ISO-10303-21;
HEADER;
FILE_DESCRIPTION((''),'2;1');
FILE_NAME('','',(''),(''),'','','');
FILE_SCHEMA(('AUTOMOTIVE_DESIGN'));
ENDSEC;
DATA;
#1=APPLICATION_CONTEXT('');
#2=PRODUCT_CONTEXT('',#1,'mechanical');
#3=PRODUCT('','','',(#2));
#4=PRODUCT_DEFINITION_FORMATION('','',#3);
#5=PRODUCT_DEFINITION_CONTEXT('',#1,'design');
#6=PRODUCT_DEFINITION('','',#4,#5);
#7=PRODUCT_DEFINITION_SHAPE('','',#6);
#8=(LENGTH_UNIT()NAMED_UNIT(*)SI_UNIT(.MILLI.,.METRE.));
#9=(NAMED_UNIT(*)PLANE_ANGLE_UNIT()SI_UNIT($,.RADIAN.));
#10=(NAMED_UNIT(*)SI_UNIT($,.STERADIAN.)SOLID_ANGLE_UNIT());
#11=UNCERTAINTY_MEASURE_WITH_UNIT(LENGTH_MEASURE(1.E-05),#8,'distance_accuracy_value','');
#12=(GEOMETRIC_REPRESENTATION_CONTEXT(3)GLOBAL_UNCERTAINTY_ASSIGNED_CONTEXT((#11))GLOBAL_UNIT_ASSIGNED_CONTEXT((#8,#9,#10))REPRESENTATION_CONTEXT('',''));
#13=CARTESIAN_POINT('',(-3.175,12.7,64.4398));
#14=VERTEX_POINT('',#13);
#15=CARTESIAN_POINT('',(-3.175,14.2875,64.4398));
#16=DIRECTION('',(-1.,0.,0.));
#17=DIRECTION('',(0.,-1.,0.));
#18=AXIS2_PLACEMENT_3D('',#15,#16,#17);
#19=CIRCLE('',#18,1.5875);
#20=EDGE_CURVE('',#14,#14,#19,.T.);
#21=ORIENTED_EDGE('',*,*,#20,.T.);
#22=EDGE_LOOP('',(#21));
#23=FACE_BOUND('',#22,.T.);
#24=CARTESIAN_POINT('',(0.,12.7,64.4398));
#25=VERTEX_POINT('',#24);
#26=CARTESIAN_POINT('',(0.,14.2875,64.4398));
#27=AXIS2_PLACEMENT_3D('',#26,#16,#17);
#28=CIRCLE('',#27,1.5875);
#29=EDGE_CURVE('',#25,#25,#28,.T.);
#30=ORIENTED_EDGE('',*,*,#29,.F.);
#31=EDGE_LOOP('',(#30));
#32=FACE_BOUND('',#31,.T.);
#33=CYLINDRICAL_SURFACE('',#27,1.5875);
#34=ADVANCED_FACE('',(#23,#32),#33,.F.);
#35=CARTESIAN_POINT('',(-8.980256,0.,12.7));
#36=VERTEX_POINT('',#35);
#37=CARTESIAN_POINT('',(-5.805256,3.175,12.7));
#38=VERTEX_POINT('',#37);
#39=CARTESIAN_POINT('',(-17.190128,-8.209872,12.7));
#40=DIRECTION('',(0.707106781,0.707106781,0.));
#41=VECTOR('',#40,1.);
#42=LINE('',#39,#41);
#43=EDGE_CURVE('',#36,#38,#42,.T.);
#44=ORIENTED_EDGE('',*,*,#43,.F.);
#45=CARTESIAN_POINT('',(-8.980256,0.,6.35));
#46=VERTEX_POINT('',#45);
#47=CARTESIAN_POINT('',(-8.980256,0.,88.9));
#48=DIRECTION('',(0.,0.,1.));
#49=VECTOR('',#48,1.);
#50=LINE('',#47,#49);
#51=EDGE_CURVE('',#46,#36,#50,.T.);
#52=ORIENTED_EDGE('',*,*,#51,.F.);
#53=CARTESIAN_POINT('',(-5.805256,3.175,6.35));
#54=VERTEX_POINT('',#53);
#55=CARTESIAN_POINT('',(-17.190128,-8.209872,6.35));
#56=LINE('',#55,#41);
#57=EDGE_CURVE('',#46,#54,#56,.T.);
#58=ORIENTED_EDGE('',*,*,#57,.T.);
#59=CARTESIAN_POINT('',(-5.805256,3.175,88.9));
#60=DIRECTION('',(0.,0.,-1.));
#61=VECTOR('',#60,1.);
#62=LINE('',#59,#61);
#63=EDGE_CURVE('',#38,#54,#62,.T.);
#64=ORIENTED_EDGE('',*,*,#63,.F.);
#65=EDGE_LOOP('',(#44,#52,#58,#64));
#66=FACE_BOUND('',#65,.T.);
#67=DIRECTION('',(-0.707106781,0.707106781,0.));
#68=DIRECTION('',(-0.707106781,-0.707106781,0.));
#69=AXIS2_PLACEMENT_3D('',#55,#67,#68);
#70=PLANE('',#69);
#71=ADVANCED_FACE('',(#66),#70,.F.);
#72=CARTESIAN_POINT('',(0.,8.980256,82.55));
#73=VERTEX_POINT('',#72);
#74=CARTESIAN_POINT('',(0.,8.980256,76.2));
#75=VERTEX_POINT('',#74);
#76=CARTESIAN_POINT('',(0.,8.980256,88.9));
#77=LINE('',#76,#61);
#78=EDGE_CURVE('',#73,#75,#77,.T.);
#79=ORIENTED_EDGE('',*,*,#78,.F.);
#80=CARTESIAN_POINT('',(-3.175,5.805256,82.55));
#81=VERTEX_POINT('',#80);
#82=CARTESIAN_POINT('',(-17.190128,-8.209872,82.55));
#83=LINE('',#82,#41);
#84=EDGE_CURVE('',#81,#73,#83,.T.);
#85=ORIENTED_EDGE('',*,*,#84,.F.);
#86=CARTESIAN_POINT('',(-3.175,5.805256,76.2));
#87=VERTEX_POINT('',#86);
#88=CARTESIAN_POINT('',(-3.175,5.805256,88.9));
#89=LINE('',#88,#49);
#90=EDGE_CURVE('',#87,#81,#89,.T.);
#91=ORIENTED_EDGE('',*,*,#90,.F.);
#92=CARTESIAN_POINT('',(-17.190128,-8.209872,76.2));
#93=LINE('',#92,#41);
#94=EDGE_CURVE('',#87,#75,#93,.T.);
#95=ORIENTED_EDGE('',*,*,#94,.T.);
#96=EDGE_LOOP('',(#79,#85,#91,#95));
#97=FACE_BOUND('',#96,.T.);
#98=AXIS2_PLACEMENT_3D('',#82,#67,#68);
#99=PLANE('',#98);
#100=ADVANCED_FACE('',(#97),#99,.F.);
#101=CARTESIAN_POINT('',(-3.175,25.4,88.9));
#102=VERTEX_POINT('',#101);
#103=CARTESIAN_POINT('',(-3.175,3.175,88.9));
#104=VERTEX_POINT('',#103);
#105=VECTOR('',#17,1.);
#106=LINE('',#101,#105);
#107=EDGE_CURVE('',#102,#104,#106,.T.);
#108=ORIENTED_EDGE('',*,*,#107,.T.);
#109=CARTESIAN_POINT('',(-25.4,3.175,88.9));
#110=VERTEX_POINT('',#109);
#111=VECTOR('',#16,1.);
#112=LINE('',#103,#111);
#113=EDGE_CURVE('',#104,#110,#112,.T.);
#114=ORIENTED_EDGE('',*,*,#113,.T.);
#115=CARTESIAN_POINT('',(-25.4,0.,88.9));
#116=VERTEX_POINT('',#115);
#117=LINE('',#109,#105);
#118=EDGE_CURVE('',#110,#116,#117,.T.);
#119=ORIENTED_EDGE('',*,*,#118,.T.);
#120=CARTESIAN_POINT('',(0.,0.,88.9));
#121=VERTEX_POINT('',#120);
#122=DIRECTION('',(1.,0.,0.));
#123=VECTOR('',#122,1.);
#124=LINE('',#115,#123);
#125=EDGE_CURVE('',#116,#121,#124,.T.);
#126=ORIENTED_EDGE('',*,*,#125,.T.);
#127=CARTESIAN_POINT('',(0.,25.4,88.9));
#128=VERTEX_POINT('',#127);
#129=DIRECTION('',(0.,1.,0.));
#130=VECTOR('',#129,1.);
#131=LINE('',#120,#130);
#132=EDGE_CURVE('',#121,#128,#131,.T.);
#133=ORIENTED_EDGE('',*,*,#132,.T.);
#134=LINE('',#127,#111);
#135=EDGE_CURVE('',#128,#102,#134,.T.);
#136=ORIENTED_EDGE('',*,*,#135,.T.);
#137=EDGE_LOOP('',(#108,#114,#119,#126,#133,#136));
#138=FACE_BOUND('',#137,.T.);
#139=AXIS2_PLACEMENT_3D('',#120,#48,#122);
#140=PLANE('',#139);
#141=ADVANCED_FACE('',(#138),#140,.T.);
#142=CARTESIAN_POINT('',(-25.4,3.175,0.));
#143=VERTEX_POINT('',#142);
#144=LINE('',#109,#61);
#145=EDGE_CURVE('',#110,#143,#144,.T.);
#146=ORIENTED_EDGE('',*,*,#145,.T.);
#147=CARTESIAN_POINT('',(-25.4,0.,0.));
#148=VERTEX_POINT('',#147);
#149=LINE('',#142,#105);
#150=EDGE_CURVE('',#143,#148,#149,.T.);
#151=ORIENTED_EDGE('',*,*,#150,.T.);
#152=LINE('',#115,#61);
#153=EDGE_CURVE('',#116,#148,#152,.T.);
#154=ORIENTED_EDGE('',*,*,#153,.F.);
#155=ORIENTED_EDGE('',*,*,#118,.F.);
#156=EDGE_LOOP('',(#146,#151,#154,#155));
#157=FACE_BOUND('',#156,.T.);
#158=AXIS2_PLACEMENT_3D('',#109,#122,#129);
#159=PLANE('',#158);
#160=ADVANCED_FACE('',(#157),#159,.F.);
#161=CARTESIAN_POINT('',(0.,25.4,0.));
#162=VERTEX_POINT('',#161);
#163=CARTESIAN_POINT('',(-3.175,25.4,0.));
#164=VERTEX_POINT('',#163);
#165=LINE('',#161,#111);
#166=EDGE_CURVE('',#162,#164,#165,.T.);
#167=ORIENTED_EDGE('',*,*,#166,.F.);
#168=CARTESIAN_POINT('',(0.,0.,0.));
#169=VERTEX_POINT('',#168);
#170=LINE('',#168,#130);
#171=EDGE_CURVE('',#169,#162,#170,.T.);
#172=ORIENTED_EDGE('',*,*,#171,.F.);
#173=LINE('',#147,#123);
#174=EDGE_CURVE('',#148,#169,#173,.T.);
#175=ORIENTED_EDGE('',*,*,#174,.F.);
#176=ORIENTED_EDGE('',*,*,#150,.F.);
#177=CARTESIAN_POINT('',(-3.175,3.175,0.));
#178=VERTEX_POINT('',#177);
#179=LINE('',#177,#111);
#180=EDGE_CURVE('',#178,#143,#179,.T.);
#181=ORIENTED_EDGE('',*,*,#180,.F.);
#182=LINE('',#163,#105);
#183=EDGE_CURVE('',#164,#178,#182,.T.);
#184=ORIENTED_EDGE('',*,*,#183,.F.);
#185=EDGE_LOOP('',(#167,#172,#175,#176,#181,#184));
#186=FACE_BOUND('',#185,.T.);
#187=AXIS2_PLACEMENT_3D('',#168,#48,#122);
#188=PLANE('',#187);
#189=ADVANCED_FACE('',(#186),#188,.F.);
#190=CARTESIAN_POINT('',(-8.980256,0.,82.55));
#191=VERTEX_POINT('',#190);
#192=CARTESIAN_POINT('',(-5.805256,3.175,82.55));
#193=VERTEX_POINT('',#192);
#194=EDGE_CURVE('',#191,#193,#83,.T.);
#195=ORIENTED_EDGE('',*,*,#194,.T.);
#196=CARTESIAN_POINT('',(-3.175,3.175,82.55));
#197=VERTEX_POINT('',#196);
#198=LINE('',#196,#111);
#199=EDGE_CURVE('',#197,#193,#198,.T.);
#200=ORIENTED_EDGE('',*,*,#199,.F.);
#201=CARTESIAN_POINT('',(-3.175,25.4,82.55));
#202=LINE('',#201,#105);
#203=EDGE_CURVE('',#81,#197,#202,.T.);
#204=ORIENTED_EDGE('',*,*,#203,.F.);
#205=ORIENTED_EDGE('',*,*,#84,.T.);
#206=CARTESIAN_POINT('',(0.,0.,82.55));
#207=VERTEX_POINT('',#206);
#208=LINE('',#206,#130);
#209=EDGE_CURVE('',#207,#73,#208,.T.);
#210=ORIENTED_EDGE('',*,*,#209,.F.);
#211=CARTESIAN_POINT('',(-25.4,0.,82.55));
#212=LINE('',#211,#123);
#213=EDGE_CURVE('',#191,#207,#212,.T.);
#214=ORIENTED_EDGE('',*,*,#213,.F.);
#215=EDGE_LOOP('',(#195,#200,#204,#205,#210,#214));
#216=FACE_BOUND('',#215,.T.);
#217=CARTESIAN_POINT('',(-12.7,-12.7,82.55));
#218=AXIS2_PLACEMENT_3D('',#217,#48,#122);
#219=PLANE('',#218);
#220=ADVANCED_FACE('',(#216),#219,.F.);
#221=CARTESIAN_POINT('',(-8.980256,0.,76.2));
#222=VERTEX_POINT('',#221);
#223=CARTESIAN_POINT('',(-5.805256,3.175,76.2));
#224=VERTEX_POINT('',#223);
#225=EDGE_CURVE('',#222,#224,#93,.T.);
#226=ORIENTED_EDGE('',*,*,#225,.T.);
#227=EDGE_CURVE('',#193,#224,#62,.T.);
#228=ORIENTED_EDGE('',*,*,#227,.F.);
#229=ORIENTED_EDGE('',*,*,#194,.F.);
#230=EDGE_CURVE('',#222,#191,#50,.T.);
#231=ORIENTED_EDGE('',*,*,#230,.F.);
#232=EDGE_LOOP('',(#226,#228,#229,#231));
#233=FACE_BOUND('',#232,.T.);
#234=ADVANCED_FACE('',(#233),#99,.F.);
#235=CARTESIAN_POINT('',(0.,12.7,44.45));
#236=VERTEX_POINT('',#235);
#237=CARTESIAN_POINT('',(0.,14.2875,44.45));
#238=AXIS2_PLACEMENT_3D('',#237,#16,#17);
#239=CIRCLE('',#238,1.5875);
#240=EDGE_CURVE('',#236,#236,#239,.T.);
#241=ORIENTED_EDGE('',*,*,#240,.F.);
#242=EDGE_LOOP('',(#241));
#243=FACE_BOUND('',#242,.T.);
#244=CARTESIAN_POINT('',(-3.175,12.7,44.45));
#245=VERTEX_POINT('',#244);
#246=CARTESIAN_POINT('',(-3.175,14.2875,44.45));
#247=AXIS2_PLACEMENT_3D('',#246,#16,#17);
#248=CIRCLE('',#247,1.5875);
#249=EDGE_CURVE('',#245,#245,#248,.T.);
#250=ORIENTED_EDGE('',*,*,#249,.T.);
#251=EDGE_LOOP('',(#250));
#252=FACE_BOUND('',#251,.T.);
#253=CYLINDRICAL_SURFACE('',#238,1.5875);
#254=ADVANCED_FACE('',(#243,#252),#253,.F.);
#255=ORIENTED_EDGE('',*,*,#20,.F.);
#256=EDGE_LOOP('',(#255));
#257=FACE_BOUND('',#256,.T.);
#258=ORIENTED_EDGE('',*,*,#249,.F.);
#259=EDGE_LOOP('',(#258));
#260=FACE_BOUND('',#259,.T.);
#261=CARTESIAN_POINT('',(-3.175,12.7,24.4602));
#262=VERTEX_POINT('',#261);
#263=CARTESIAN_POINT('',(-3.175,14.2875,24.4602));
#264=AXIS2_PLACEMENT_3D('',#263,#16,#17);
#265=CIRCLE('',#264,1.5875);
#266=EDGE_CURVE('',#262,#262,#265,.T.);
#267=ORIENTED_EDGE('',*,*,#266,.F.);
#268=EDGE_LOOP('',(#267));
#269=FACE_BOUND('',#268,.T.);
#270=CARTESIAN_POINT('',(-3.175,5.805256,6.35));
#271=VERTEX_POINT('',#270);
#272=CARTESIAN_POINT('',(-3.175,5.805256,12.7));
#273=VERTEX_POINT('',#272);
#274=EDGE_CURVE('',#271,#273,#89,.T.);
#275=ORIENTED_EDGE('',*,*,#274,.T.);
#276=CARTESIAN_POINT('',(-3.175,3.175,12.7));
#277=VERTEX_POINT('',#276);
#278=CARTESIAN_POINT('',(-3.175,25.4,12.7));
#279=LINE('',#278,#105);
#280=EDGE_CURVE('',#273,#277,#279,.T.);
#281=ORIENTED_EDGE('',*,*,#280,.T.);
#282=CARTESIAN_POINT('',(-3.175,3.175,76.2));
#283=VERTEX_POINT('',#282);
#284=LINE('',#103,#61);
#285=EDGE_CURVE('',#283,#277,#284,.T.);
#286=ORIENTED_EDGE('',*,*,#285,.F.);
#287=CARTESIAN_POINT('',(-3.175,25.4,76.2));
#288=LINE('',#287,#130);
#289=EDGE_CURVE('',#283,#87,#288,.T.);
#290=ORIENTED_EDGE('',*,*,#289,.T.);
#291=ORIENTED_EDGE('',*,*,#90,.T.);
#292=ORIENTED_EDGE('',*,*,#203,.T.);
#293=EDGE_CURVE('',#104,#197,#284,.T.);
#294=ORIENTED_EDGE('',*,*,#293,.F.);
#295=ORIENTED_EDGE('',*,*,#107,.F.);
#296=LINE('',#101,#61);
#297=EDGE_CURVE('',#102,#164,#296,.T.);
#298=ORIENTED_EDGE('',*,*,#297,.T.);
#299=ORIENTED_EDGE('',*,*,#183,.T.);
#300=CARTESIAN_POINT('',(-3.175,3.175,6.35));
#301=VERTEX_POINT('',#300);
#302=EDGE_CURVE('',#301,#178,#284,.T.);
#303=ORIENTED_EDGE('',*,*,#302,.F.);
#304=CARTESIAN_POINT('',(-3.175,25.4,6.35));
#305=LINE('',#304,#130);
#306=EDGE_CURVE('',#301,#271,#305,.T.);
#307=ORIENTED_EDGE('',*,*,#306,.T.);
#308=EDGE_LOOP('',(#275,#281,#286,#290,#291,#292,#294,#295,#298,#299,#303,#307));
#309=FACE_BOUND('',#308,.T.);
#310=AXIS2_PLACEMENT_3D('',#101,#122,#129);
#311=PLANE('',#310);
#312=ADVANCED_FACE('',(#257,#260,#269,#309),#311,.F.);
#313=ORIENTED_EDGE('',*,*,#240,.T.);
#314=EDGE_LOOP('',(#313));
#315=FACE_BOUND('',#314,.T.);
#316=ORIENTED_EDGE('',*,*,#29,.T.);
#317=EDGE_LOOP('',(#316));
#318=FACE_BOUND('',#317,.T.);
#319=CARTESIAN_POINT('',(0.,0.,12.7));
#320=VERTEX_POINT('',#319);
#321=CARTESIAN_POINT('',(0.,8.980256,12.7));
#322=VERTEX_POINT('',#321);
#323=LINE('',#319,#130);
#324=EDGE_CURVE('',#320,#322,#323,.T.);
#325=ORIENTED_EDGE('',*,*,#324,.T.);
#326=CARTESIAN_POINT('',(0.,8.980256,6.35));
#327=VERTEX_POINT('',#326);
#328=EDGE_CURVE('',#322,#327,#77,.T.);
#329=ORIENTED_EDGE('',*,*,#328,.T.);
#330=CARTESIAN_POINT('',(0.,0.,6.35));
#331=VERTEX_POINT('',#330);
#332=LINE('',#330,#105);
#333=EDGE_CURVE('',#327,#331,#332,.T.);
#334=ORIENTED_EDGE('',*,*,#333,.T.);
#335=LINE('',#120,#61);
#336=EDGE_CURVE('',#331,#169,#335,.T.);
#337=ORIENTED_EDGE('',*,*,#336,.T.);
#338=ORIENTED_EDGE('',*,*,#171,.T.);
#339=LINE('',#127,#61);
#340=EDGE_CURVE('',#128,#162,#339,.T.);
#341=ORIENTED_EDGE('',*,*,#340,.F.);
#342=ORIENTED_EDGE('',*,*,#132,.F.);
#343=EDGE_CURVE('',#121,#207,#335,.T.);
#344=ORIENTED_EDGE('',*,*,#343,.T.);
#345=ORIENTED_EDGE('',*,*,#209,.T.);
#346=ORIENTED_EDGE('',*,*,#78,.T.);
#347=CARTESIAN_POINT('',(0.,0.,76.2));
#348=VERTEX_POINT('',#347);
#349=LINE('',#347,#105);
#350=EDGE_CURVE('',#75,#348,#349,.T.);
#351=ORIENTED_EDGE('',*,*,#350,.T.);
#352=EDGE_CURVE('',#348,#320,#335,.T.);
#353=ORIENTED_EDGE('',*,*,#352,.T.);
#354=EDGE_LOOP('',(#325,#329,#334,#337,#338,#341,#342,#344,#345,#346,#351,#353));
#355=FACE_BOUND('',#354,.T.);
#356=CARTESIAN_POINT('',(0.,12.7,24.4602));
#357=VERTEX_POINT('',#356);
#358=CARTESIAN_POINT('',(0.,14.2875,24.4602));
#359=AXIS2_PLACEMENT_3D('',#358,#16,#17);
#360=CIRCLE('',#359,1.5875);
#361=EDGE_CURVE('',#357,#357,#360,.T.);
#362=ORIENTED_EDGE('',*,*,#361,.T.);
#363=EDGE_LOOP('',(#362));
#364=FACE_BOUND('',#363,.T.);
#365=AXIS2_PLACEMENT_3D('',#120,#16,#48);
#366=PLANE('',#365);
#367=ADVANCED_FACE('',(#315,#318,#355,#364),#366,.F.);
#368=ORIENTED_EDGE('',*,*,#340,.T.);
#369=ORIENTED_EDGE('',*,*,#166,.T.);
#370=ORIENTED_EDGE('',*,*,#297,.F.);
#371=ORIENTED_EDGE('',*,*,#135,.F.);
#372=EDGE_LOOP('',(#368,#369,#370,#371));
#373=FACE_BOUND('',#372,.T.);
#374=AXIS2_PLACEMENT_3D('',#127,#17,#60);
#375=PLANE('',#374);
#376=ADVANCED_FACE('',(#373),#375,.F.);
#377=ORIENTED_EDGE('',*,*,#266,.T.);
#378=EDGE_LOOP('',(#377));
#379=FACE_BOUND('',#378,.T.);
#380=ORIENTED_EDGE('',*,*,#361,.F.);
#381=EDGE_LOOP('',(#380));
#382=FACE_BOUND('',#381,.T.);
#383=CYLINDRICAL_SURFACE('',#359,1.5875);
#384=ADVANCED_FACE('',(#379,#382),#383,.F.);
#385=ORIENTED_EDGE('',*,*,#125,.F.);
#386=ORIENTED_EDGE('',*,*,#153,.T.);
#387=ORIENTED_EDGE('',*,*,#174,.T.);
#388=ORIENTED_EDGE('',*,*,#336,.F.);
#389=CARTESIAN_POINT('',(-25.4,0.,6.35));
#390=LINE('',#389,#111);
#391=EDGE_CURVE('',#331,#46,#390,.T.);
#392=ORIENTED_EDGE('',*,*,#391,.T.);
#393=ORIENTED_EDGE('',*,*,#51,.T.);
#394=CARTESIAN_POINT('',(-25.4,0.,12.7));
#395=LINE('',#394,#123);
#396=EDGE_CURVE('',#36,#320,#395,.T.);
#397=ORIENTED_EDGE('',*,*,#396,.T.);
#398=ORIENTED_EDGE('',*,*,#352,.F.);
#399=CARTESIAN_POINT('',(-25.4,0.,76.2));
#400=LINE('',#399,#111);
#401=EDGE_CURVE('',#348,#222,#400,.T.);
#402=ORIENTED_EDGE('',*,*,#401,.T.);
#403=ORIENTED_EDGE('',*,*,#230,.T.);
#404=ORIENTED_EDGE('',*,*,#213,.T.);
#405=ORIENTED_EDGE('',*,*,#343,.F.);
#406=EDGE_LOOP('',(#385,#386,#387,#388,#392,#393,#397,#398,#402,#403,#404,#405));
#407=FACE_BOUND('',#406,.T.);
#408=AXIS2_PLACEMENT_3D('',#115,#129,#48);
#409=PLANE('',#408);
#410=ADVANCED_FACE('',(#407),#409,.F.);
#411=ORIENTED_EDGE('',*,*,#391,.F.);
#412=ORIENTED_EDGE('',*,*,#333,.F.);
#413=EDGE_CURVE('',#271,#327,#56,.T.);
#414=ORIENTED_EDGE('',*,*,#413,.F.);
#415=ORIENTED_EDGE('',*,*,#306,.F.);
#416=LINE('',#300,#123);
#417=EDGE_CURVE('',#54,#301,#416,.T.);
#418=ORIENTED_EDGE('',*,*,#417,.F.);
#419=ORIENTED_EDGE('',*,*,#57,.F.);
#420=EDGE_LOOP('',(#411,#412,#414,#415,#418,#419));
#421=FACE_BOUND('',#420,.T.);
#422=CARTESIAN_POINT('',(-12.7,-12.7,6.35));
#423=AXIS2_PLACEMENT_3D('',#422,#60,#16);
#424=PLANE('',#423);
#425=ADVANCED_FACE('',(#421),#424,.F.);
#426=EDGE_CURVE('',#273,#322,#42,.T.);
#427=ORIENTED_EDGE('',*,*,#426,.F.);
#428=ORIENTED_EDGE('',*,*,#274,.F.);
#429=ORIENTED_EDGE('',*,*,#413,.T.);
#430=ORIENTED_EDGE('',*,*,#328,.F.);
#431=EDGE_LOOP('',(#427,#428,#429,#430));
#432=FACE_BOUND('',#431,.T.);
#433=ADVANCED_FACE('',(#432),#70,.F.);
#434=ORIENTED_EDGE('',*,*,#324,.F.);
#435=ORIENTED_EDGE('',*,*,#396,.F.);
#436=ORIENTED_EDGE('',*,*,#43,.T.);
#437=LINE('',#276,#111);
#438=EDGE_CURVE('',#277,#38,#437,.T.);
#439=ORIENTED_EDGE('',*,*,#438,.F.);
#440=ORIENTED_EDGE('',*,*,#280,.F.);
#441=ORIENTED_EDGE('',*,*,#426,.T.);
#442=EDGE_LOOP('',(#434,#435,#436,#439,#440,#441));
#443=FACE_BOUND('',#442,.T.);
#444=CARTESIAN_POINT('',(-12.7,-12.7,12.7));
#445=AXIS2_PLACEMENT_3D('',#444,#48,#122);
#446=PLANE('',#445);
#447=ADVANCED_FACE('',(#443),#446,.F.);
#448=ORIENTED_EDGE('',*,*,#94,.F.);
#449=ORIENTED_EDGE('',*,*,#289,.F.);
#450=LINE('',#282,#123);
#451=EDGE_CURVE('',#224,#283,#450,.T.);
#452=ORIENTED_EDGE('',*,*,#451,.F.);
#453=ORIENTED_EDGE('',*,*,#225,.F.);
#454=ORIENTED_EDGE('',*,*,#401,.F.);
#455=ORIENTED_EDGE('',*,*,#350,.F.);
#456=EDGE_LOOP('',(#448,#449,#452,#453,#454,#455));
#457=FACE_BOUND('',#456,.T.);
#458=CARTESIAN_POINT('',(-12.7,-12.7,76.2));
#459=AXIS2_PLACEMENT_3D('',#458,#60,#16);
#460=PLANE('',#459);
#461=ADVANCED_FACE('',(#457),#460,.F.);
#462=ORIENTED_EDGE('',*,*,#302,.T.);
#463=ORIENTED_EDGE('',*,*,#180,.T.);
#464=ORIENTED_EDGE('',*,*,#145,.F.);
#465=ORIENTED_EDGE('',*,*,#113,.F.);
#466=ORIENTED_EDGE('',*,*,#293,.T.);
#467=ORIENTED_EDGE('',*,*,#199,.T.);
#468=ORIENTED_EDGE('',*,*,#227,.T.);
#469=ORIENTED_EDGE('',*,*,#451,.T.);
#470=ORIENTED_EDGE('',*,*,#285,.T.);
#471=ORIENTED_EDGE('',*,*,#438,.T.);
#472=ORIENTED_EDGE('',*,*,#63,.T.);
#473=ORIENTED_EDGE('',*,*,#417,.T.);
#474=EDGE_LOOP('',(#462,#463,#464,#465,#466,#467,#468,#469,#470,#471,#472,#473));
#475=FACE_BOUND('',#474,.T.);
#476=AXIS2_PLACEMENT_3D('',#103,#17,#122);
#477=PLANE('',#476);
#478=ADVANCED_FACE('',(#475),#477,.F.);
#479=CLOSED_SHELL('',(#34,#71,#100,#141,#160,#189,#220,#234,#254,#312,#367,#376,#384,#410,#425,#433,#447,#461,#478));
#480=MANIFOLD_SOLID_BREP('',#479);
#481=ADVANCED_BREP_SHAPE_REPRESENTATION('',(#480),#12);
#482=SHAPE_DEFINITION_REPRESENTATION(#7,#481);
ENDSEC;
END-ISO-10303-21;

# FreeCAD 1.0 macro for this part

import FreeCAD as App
import Part
import Sketcher
from FreeCAD import Vector
Q = App.Units.Quantity


def add_polygon(sketch, points):
    """Adds a closed chain of lines whose ends are joined by coincident constraints."""
    first, n = sketch.GeometryCount, len(points)
    for a, b in zip(points, points[1:] + points[:1]):
        sketch.addGeometry(Part.LineSegment(App.Vector(*a, 0), App.Vector(*b, 0)), False)
    for i in range(n):
        sketch.addConstraint(Sketcher.Constraint("Coincident", first + i, 2, first + (i + 1) % n, 1))

doc = App.newDocument("Part")
body = doc.addObject("PartDesign::Body", "Body")

sketch1 = body.newObject("Sketcher::SketchObject", "Sketch")
sketch1.AttachmentSupport = (doc.getObject("XY_Plane"), [""])
sketch1.MapMode = "FlatFace"
add_polygon(sketch1, [(0, 0), (0, 25.4), (-3.2, 25.4), (-3.2, 3.2), (-25.4, 3.2), (-25.4, 0)])
sketch1.addConstraint(Sketcher.Constraint("Vertical", 0))
sketch1.addConstraint(Sketcher.Constraint("Horizontal", 1))
sketch1.addConstraint(Sketcher.Constraint("Vertical", 2))
sketch1.addConstraint(Sketcher.Constraint("Horizontal", 3))
sketch1.addConstraint(Sketcher.Constraint("Vertical", 4))
sketch1.addConstraint(Sketcher.Constraint("Horizontal", 5))
sketch1.addConstraint(Sketcher.Constraint("Coincident", 5, 2, -1, 1))
sketch1.addConstraint(Sketcher.Constraint("Equal", 5, 0))
sketch1.addConstraint(Sketcher.Constraint("Equal", 3, 2))
sketch1.addConstraint(Sketcher.Constraint("DistanceX", 5, 1, 5, 2, Q("1 in")))
sketch1.addConstraint(Sketcher.Constraint("DistanceX", 1, 2, 1, 1, Q("0.125 in")))
pad1 = body.newObject("PartDesign::Pad", "Pad")
pad1.Profile = sketch1
pad1.Length = Q("3.5 in")

sketch2 = body.newObject("Sketcher::SketchObject", "Sketch001")
sketch2.Placement = App.Placement(Vector(0, 0, 0), App.Rotation(Vector(0, 0, -1), Vector(-0.707106781, 0.707106781, 0), Vector(0.707106781, 0.707106781, 0), "ZXY"))
add_polygon(sketch2, [(-83, 6), (-83, 0), (-76, 0), (-76, 6)])
add_polygon(sketch2, [(-13, 6), (-13, 0), (-6, 0), (-6, 6)])
sketch2.addConstraint(Sketcher.Constraint("Vertical", 0))
sketch2.addConstraint(Sketcher.Constraint("Horizontal", 1))
sketch2.addConstraint(Sketcher.Constraint("Vertical", 2))
sketch2.addConstraint(Sketcher.Constraint("Horizontal", 3))
sketch2.addConstraint(Sketcher.Constraint("Vertical", 4))
sketch2.addConstraint(Sketcher.Constraint("Horizontal", 5))
sketch2.addConstraint(Sketcher.Constraint("Vertical", 6))
sketch2.addConstraint(Sketcher.Constraint("Horizontal", 7))
sketch2.addConstraint(Sketcher.Constraint("PointOnObject", 0, 2, -1))
sketch2.addConstraint(Sketcher.Constraint("PointOnObject", 4, 2, -1))
sketch2.addConstraint(Sketcher.Constraint("Horizontal", 3, 2, 6, 2))
sketch2.addConstraint(Sketcher.Constraint("Equal", 3, 5))
sketch2.addConstraint(Sketcher.Constraint("Equal", 7, 0))
sketch2.addConstraint(Sketcher.Constraint("DistanceX", 1, 2, -1, 1, Q("3 in")))
sketch2.addConstraint(Sketcher.Constraint("DistanceX", 0, 2, 5, 2, Q("3 in")))
sketch2.addConstraint(Sketcher.Constraint("DistanceX", 1, 1, 1, 2, Q("0.25 in")))
pocket1 = body.newObject("PartDesign::Pocket", "Pocket")
pocket1.Profile = sketch2
pocket1.Type = "ThroughAll"
pocket1.Midplane = True

sketch3 = body.newObject("Sketcher::SketchObject", "Sketch002")
sketch3.AttachmentSupport = (doc.getObject("YZ_Plane"), [""])
sketch3.MapMode = "FlatFace"
sketch3.AttachmentOffset = App.Placement(Vector(0, 0, -0.125 * 25.4), App.Rotation())
sketch3.addGeometry(Part.Circle(Vector(14.3, 44.5, 0), Vector(0, 0, 1), 1.6), False)
sketch3.addGeometry(Part.Circle(Vector(14.3, 24.5, 0), Vector(0, 0, 1), 1.6), False)
sketch3.addGeometry(Part.Circle(Vector(14.3, 64.4, 0), Vector(0, 0, 1), 1.6), False)
sketch3.addConstraint(Sketcher.Constraint("Equal", 0, 1))
sketch3.addConstraint(Sketcher.Constraint("Equal", 1, 2))
sketch3.addConstraint(Sketcher.Constraint("Vertical", 0, 3, 1, 3))
sketch3.addConstraint(Sketcher.Constraint("Vertical", 1, 3, 2, 3))
sketch3.addConstraint(Sketcher.Constraint("Diameter", 0, Q("0.125 in")))
sketch3.addConstraint(Sketcher.Constraint("DistanceY", -1, 1, 0, 3, Q("1.75 in")))
sketch3.addConstraint(Sketcher.Constraint("DistanceX", -1, 1, 0, 3, Q("0.5625 in")))
sketch3.addConstraint(Sketcher.Constraint("DistanceY", -1, 1, 1, 3, Q("0.963 in")))
sketch3.addConstraint(Sketcher.Constraint("DistanceY", -1, 1, 2, 3, Q("2.537 in")))
pocket2 = body.newObject("PartDesign::Pocket", "Pocket001")
pocket2.Profile = sketch3
pocket2.Type = "ThroughAll"
pocket2.Reversed = True

doc.recompute()
